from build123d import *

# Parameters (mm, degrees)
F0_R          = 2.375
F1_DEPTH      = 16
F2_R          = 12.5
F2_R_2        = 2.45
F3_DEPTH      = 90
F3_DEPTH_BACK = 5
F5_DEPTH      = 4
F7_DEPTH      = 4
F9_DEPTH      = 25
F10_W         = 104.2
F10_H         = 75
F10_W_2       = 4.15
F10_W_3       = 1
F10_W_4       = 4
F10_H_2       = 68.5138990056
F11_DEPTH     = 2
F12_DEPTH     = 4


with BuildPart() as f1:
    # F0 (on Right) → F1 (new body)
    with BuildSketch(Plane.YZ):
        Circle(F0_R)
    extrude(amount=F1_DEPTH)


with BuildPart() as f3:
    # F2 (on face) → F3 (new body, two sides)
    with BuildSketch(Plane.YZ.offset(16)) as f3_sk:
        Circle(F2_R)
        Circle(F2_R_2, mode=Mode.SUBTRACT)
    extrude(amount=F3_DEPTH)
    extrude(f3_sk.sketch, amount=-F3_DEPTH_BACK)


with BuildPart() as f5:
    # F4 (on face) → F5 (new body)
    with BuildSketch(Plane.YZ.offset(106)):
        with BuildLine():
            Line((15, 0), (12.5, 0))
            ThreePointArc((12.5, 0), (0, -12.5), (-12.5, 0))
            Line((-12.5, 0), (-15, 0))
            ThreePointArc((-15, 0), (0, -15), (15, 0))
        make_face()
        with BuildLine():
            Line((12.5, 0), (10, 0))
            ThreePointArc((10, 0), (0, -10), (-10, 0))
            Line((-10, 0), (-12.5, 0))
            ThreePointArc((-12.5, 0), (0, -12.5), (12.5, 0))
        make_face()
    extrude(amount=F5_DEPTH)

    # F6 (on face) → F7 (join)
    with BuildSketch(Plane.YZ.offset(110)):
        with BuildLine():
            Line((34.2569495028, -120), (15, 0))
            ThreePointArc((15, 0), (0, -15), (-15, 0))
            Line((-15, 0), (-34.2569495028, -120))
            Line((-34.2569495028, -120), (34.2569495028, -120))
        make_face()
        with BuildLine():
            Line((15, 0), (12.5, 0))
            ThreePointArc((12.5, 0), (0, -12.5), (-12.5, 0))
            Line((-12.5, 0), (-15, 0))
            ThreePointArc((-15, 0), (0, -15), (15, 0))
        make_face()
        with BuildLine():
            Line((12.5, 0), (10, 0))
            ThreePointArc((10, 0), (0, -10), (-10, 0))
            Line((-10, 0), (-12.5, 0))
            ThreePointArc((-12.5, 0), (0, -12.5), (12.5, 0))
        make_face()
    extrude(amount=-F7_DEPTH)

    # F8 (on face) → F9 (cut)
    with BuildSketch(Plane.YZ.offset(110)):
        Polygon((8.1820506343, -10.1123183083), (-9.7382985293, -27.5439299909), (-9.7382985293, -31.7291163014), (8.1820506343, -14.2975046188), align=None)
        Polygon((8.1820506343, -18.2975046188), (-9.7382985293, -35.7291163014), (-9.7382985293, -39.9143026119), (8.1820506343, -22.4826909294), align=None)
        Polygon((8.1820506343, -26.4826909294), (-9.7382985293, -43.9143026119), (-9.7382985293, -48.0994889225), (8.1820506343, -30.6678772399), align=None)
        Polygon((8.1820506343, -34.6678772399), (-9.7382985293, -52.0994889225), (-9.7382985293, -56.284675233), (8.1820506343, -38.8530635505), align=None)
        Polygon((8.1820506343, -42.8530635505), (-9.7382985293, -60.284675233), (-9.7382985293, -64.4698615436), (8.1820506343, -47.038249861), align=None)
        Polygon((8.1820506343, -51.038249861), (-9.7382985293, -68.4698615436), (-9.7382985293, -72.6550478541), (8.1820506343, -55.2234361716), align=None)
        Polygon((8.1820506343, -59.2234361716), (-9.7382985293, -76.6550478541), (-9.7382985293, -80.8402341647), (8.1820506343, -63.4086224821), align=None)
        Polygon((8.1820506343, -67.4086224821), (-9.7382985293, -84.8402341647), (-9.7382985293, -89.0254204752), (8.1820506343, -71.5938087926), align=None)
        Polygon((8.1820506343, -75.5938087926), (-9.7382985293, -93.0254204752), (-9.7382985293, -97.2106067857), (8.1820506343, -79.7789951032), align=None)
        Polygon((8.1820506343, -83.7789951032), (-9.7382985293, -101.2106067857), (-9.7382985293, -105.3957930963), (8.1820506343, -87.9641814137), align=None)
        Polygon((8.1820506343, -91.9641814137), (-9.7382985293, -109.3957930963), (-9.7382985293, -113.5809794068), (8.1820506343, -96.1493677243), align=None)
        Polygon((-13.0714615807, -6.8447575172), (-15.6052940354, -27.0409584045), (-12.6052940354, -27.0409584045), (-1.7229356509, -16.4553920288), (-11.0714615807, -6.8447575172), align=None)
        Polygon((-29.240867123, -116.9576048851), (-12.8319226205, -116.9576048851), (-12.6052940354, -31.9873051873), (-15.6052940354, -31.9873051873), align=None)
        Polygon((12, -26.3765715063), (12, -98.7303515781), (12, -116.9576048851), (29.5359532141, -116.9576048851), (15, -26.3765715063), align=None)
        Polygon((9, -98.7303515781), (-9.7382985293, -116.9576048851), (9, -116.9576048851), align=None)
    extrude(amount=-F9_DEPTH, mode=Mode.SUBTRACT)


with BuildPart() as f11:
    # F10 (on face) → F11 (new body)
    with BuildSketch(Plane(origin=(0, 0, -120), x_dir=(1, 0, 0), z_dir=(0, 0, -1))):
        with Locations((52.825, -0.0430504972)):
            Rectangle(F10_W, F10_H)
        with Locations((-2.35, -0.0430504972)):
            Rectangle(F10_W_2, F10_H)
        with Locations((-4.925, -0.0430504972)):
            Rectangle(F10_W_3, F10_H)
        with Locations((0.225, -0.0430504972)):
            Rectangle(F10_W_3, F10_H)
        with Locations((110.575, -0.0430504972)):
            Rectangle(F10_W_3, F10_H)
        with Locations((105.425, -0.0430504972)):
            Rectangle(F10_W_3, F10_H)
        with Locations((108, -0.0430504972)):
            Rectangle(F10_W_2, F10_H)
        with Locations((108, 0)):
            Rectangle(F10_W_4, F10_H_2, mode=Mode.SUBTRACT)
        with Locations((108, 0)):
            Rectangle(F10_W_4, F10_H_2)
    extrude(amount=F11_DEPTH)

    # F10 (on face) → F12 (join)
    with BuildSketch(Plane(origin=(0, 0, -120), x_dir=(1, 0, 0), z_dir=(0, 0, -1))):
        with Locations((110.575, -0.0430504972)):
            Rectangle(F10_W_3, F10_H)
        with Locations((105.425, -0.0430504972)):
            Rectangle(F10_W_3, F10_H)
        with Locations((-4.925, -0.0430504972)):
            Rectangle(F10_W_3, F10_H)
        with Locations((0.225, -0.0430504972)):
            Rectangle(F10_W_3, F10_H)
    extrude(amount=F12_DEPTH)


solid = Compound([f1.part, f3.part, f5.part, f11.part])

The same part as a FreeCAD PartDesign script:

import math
import FreeCAD as App
import Part
import Sketcher

V = App.Vector
Q = App.Units.Quantity


def add_polygon(sketch, points):
    """Adds a closed chain of lines whose ends are joined by coincident constraints."""
    first, n = sketch.GeometryCount, len(points)
    for a, b in zip(points, points[1:] + points[:1]):
        sketch.addGeometry(Part.LineSegment(App.Vector(*a, 0), App.Vector(*b, 0)), False)
    for i in range(n):
        sketch.addConstraint(Sketcher.Constraint("Coincident", first + i, 2, first + (i + 1) % n, 1))

doc = App.newDocument("Part")
body = doc.addObject("PartDesign::Body", "Body")

# Sketch on YZ plane
sketch1 = body.newObject("Sketcher::SketchObject", "Sketch")
sketch1.AttachmentSupport = (doc.getObject("YZ_Plane"), [""])
sketch1.MapMode = "FlatFace"
sketch1.addGeometry(Part.Circle(V(0, 0, 0), V(0, 0, 1), 2.375), False)
sketch1.addConstraint([
    Sketcher.Constraint("Coincident", 0, 3, -1, 1),
    Sketcher.Constraint("Diameter", 0, Q("4.75 mm")),
])
pad1 = body.newObject("PartDesign::Pad", "Pad")
pad1.Profile = sketch1
pad1.Length = 16
body2 = doc.addObject("PartDesign::Body", "Body001")

# Sketch on YZ plane
sketch2 = body2.newObject("Sketcher::SketchObject", "Sketch001")
sketch2.AttachmentSupport = (doc.getObject("YZ_Plane001"), [""])
sketch2.MapMode = "FlatFace"
sketch2.AttachmentOffset = App.Placement(V(0, 0, 16), App.Rotation())
sketch2.addGeometry([
    Part.Circle(V(0, 0, 0), V(0, 0, 1), 12.5),
    Part.Circle(V(0, 0, 0), V(0, 0, 1), 2.45),
], False)
sketch2.addConstraint([
    Sketcher.Constraint("Coincident", 0, 3, -1, 1),
    Sketcher.Constraint("Coincident", 1, 3, -1, 1),
    Sketcher.Constraint("Diameter", 0, Q("25 mm")),
    Sketcher.Constraint("Diameter", 1, Q("4.9 mm")),
])
pad2 = body2.newObject("PartDesign::Pad", "Pad001")
pad2.Profile = sketch2
pad2.Type = "TwoLengths"
pad2.Length = 90
pad2.Length2 = 5
body3 = doc.addObject("PartDesign::Body", "Body002")

# Sketch on YZ plane
sketch3 = body3.newObject("Sketcher::SketchObject", "Sketch002")
sketch3.AttachmentSupport = (doc.getObject("YZ_Plane002"), [""])
sketch3.MapMode = "FlatFace"
sketch3.AttachmentOffset = App.Placement(V(0, 0, 106), App.Rotation())
sketch3.addGeometry([
    Part.LineSegment(V(15, 0, 0), V(10, 0, 0)),
    Part.ArcOfCircle(Part.Circle(V(0, 0, 0), V(0, 0, 1), 10), math.radians(180), math.radians(360)),
    Part.LineSegment(V(-10, 0, 0), V(-15, 0, 0)),
    Part.ArcOfCircle(Part.Circle(V(0, 0, 0), V(0, 0, 1), 15), math.radians(180), math.radians(360)),
], False)
sketch3.addConstraint([
    Sketcher.Constraint("Coincident", 0, 2, 1, 2),
    Sketcher.Constraint("Coincident", 1, 1, 2, 1),
    Sketcher.Constraint("Coincident", 2, 2, 3, 1),
    Sketcher.Constraint("Coincident", 3, 2, 0, 1),
    Sketcher.Constraint("Horizontal", 0),
    Sketcher.Constraint("Horizontal", 2),
    Sketcher.Constraint("Coincident", 1, 3, -1, 1),
    Sketcher.Constraint("Coincident", 3, 3, -1, 1),
    Sketcher.Constraint("PointOnObject", 0, 2, -1),
    Sketcher.Constraint("PointOnObject", 1, 1, -1),
    Sketcher.Constraint("Radius", 1, Q("10 mm")),
    Sketcher.Constraint("Radius", 3, Q("15 mm")),
])
pad3 = body3.newObject("PartDesign::Pad", "Pad002")
pad3.Profile = sketch3
pad3.Length = 4

# Sketch on YZ plane
sketch4 = body3.newObject("Sketcher::SketchObject", "Sketch003")
sketch4.AttachmentSupport = (doc.getObject("YZ_Plane002"), [""])
sketch4.MapMode = "FlatFace"
sketch4.AttachmentOffset = App.Placement(V(0, 0, 110), App.Rotation())
sketch4.addGeometry([
    Part.LineSegment(V(34.25695, -120, 0), V(15, 0, 0)),  # 0
    Part.LineSegment(V(15, 0, 0), V(10, 0, 0)),  # 1
    Part.ArcOfCircle(Part.Circle(V(0, 0, 0), V(0, 0, 1), 10), math.radians(180), math.radians(360)),  # 2
    Part.LineSegment(V(-10, 0, 0), V(-15, 0, 0)),  # 3
    Part.LineSegment(V(-15, 0, 0), V(-34.25695, -120, 0)),  # 4
    Part.LineSegment(V(-34.25695, -120, 0), V(34.25695, -120, 0)),  # 5
], False)
sketch4.addConstraint([
    Sketcher.Constraint("Coincident", 0, 2, 1, 1),
    Sketcher.Constraint("Coincident", 1, 2, 2, 2),
    Sketcher.Constraint("Coincident", 2, 1, 3, 1),
    Sketcher.Constraint("Coincident", 3, 2, 4, 1),
    Sketcher.Constraint("Coincident", 4, 2, 5, 1),
    Sketcher.Constraint("Coincident", 5, 2, 0, 1),
    Sketcher.Constraint("Horizontal", 1),
    Sketcher.Constraint("Horizontal", 3),
    Sketcher.Constraint("Horizontal", 5),
    Sketcher.Constraint("Coincident", 2, 3, -1, 1),
    Sketcher.Constraint("Symmetric", 0, 2, 3, 2, -1, 1),
    Sketcher.Constraint("PointOnObject", 0, 2, -1),
    Sketcher.Constraint("Equal", 0, 4),
    Sketcher.Constraint("Radius", 2, Q("10 mm")),
    Sketcher.Constraint("DistanceX", 1, 2, 1, 1, Q("5 mm")),
    Sketcher.Constraint("DistanceY", 4, 2, -1, 1, Q("120 mm")),
    Sketcher.Constraint("DistanceX", 5, 1, 5, 2, Q("68.513899 mm")),
])
pad4 = body3.newObject("PartDesign::Pad", "Pad003")
pad4.Profile = sketch4
pad4.Length = 4
pad4.Reversed = True

# Sketch on YZ plane
sketch5 = body3.newObject("Sketcher::SketchObject", "Sketch004")
sketch5.AttachmentSupport = (doc.getObject("YZ_Plane002"), [""])
sketch5.MapMode = "FlatFace"
sketch5.AttachmentOffset = App.Placement(V(0, 0, 110), App.Rotation())
add_polygon(sketch5, [(8.182051, -10.112318), (-9.738299, -27.54393), (-9.738299, -31.729116), (8.182051, -14.297505)])  # lines 0-3
add_polygon(sketch5, [(8.182051, -18.297505), (-9.738299, -35.729116), (-9.738299, -39.914303), (8.182051, -22.482691)])  # lines 4-7
add_polygon(sketch5, [(8.182051, -26.482691), (-9.738299, -43.914303), (-9.738299, -48.099489), (8.182051, -30.667877)])  # lines 8-11
add_polygon(sketch5, [(8.182051, -34.667877), (-9.738299, -52.099489), (-9.738299, -56.284675), (8.182051, -38.853064)])  # lines 12-15
add_polygon(sketch5, [(8.182051, -42.853064), (-9.738299, -60.284675), (-9.738299, -64.469862), (8.182051, -47.03825)])  # lines 16-19
add_polygon(sketch5, [(8.182051, -51.03825), (-9.738299, -68.469862), (-9.738299, -72.655048), (8.182051, -55.223436)])  # lines 20-23
add_polygon(sketch5, [(8.182051, -59.223436), (-9.738299, -76.655048), (-9.738299, -80.840234), (8.182051, -63.408622)])  # lines 24-27
add_polygon(sketch5, [(8.182051, -67.408622), (-9.738299, -84.840234), (-9.738299, -89.02542), (8.182051, -71.593809)])  # lines 28-31
add_polygon(sketch5, [(8.182051, -75.593809), (-9.738299, -93.02542), (-9.738299, -97.210607), (8.182051, -79.778995)])  # lines 32-35
add_polygon(sketch5, [(8.182051, -83.778995), (-9.738299, -101.210607), (-9.738299, -105.395793), (8.182051, -87.964181)])  # lines 36-39
add_polygon(sketch5, [(8.182051, -91.964181), (-9.738299, -109.395793), (-9.738299, -113.580979), (8.182051, -96.149368)])  # lines 40-43
add_polygon(sketch5, [(-13.071462, -6.844758), (-15.605294, -27.040958), (-12.605294, -27.040958), (-1.722936, -16.455392), (-11.071462, -6.844758)])  # lines 44-48
add_polygon(sketch5, [(-29.240867, -116.957605), (-12.831923, -116.957605), (-12.605294, -31.987305), (-15.605294, -31.987305)])  # lines 49-52
add_polygon(sketch5, [(12, -26.376572), (12, -116.957605), (29.535953, -116.957605), (15, -26.376572)])  # lines 53-56
add_polygon(sketch5, [(9, -98.730352), (-9.738299, -116.957605), (9, -116.957605)])  # lines 57-59
sketch5.addConstraint([
    Sketcher.Constraint("Vertical", 1),
    Sketcher.Constraint("Vertical", 3),
    Sketcher.Constraint("Vertical", 5),
    Sketcher.Constraint("Vertical", 7),
    Sketcher.Constraint("Vertical", 9),
    Sketcher.Constraint("Vertical", 11),
    Sketcher.Constraint("Vertical", 13),
    Sketcher.Constraint("Vertical", 15),
    Sketcher.Constraint("Vertical", 17),
    Sketcher.Constraint("Vertical", 19),
    Sketcher.Constraint("Vertical", 21),
    Sketcher.Constraint("Vertical", 23),
    Sketcher.Constraint("Vertical", 25),
    Sketcher.Constraint("Vertical", 27),
    Sketcher.Constraint("Vertical", 29),
    Sketcher.Constraint("Vertical", 31),
    Sketcher.Constraint("Vertical", 33),
    Sketcher.Constraint("Vertical", 35),
    Sketcher.Constraint("Vertical", 37),
    Sketcher.Constraint("Vertical", 39),
    Sketcher.Constraint("Vertical", 41),
    Sketcher.Constraint("Vertical", 43),
    Sketcher.Constraint("Horizontal", 45),
    Sketcher.Constraint("Horizontal", 48),
    Sketcher.Constraint("Horizontal", 49),
    Sketcher.Constraint("Horizontal", 51),
    Sketcher.Constraint("Vertical", 53),
    Sketcher.Constraint("Horizontal", 54),
    Sketcher.Constraint("Horizontal", 56),
    Sketcher.Constraint("Horizontal", 58),
    Sketcher.Constraint("Vertical", 59),
    Sketcher.Constraint("Parallel", 0, 2),
    Sketcher.Constraint("Parallel", 2, 4),
    Sketcher.Constraint("Parallel", 4, 6),
    Sketcher.Constraint("Parallel", 6, 8),
    Sketcher.Constraint("Parallel", 8, 10),
    Sketcher.Constraint("Parallel", 10, 12),
    Sketcher.Constraint("Parallel", 12, 14),
    Sketcher.Constraint("Parallel", 14, 16),
    Sketcher.Constraint("Parallel", 16, 18),
    Sketcher.Constraint("Parallel", 18, 20),
    Sketcher.Constraint("Parallel", 20, 22),
    Sketcher.Constraint("Parallel", 22, 24),
    Sketcher.Constraint("Parallel", 24, 26),
    Sketcher.Constraint("Parallel", 26, 28),
    Sketcher.Constraint("Parallel", 28, 30),
    Sketcher.Constraint("Parallel", 30, 32),
    Sketcher.Constraint("Parallel", 32, 34),
    Sketcher.Constraint("Parallel", 34, 36),
    Sketcher.Constraint("Parallel", 36, 38),
    Sketcher.Constraint("Parallel", 38, 40),
    Sketcher.Constraint("Parallel", 40, 42),
    Sketcher.Constraint("Parallel", 42, 46),
    Sketcher.Constraint("Perpendicular", 46, 47),
    Sketcher.Constraint("Perpendicular", 47, 57),
    Sketcher.Constraint("Horizontal", 52, 2, 53, 2),
    Sketcher.Constraint("Horizontal", 54, 2, 57, 2),
    Sketcher.Constraint("Vertical", 1, 2, 4, 2),
    Sketcher.Constraint("Vertical", 3, 2, 6, 2),
    Sketcher.Constraint("Vertical", 5, 2, 8, 2),
    Sketcher.Constraint("Vertical", 7, 2, 10, 2),
    Sketcher.Constraint("Vertical", 9, 2, 12, 2),
    Sketcher.Constraint("Vertical", 11, 2, 14, 2),
    Sketcher.Constraint("Vertical", 13, 2, 16, 2),
    Sketcher.Constraint("Vertical", 15, 2, 18, 2),
    Sketcher.Constraint("Vertical", 17, 2, 20, 2),
    Sketcher.Constraint("Vertical", 19, 2, 22, 2),
    Sketcher.Constraint("Vertical", 21, 2, 24, 2),
    Sketcher.Constraint("Vertical", 23, 2, 26, 2),
    Sketcher.Constraint("Vertical", 25, 2, 28, 2),
    Sketcher.Constraint("Vertical", 27, 2, 30, 2),
    Sketcher.Constraint("Vertical", 29, 2, 32, 2),
    Sketcher.Constraint("Vertical", 31, 2, 34, 2),
    Sketcher.Constraint("Vertical", 33, 2, 36, 2),
    Sketcher.Constraint("Vertical", 35, 2, 38, 2),
    Sketcher.Constraint("Vertical", 37, 2, 40, 2),
    Sketcher.Constraint("Vertical", 39, 2, 42, 2),
    Sketcher.Constraint("Vertical", 45, 2, 50, 2),
    Sketcher.Constraint("Vertical", 44, 2, 51, 2),
    Sketcher.Constraint("Vertical", 41, 2, 57, 2),
    Sketcher.Constraint("Equal", 51, 56),
    Sketcher.Constraint("Equal", 3, 5),
    Sketcher.Constraint("Equal", 7, 9),
    Sketcher.Constraint("Equal", 11, 13),
    Sketcher.Constraint("Equal", 15, 17),
    Sketcher.Constraint("Equal", 19, 21),
    Sketcher.Constraint("Equal", 23, 25),
    Sketcher.Constraint("Equal", 27, 29),
    Sketcher.Constraint("Equal", 31, 33),
    Sketcher.Constraint("Equal", 35, 37),
    Sketcher.Constraint("Equal", 39, 41),
    Sketcher.Constraint("DistanceX", 45, 1, 45, 2, Q("3 mm")),
    Sketcher.Constraint("DistanceX", 48, 2, 48, 1, Q("2 mm")),
    Sketcher.Constraint("Distance", 0, Q("25 mm")),
    Sketcher.Constraint("DistanceX", -1, 1, 53, 2, Q("12 mm")),
    Sketcher.Constraint("DistanceX", -1, 1, 58, 2, Q("9 mm")),
    Sketcher.Constraint("DistanceY", 4, 2, 1, 2, Q("4 mm")),
    Sketcher.Constraint("DistanceY", 8, 2, 5, 2, Q("4 mm")),
    Sketcher.Constraint("DistanceY", 12, 2, 9, 2, Q("4 mm")),
    Sketcher.Constraint("DistanceY", 16, 2, 13, 2, Q("4 mm")),
    Sketcher.Constraint("DistanceY", 20, 2, 17, 2, Q("4 mm")),
    Sketcher.Constraint("DistanceY", 24, 2, 21, 2, Q("4 mm")),
    Sketcher.Constraint("DistanceY", 28, 2, 25, 2, Q("4 mm")),
    Sketcher.Constraint("DistanceY", 32, 2, 29, 2, Q("4 mm")),
    Sketcher.Constraint("DistanceY", 36, 2, 33, 2, Q("4 mm")),
    Sketcher.Constraint("DistanceY", 40, 2, 37, 2, Q("4 mm")),
    Sketcher.Constraint("DistanceX", 58, 1, 58, 2, Q("18.738299 mm")),
    Sketcher.Constraint("DistanceY", 49, 2, 36, 2, Q("15.746998 mm")),
    Sketcher.Constraint("Distance", 50, Q("84.970602 mm")),
    Sketcher.Constraint("DistanceY", 6, 2, 46, 2, Q("6.027299 mm")),
    Sketcher.Constraint("DistanceY", 45, 2, 47, 2, Q("20.196201 mm")),
    Sketcher.Constraint("Distance", 44, Q("20.354529 mm")),
    Sketcher.Constraint("Distance", 47, Q("13.407432 mm")),
    Sketcher.Constraint("DistanceX", 49, 1, 49, 2, Q("16.408945 mm")),
    Sketcher.Constraint("DistanceX", 54, 1, 54, 2, Q("17.535953 mm")),
    Sketcher.Constraint("DistanceY", 1, 2, 1, 1, Q("4.185186 mm")),
    Sketcher.Constraint("DistanceY", 53, 2, 53, 1, Q("90.581033 mm")),
    Sketcher.Constraint("DistanceY", 0, 2, -1, 1, Q("27.54393 mm")),
    Sketcher.Constraint("DistanceX", 47, 2, -1, 1, Q("11.071462 mm")),
    Sketcher.Constraint("DistanceX", 52, 2, 41, 2, Q("19.502569 mm")),
])
pocket1 = body3.newObject("PartDesign::Pocket", "Pocket")
pocket1.Profile = sketch5
pocket1.Length = 25
body4 = doc.addObject("PartDesign::Body", "Body003")

# Sketch on XY plane
sketch6 = body4.newObject("Sketcher::SketchObject", "Sketch005")
sketch6.AttachmentSupport = (doc.getObject("XY_Plane003"), [""])
sketch6.MapMode = "FlatFace"
sketch6.AttachmentOffset = App.Placement(V(0, 0, -120), App.Rotation())
add_polygon(sketch6, [(-5.425, -37.45695), (-5.425, 37.54305), (111.075, 37.54305), (111.075, -37.45695)])  # lines 0-3
sketch6.addConstraint([
    Sketcher.Constraint("Vertical", 0),
    Sketcher.Constraint("Horizontal", 1),
    Sketcher.Constraint("Vertical", 2),
    Sketcher.Constraint("Horizontal", 3),
    Sketcher.Constraint("DistanceY", 0, 1, 0, 2, Q("75 mm")),
    Sketcher.Constraint("DistanceX", 1, 1, 1, 2, Q("116.5 mm")),
    Sketcher.Constraint("DistanceX", 0, 2, -1, 1, Q("5.425 mm")),
    Sketcher.Constraint("DistanceY", -1, 1, 0, 2, Q("37.54305 mm")),
])
pad5 = body4.newObject("PartDesign::Pad", "Pad004")
pad5.Profile = sketch6
pad5.Length = 2
pad5.Reversed = True

# Sketch on XY plane
sketch7 = body4.newObject("Sketcher::SketchObject", "Sketch006")
sketch7.AttachmentSupport = (doc.getObject("XY_Plane003"), [""])
sketch7.MapMode = "FlatFace"
sketch7.AttachmentOffset = App.Placement(V(0, 0, -120), App.Rotation())
add_polygon(sketch7, [(110.075, -37.45695), (110.075, 37.54305), (111.075, 37.54305), (111.075, -37.45695)])  # lines 0-3
add_polygon(sketch7, [(104.925, -37.45695), (104.925, 37.54305), (105.925, 37.54305), (105.925, -37.45695)])  # lines 4-7
add_polygon(sketch7, [(-5.425, -37.45695), (-5.425, 37.54305), (-4.425, 37.54305), (-4.425, -37.45695)])  # lines 8-11
add_polygon(sketch7, [(-0.275, -37.45695), (-0.275, 37.54305), (0.725, 37.54305), (0.725, -37.45695)])  # lines 12-15
sketch7.addConstraint([
    Sketcher.Constraint("Vertical", 0),
    Sketcher.Constraint("Horizontal", 1),
    Sketcher.Constraint("Vertical", 2),
    Sketcher.Constraint("Horizontal", 3),
    Sketcher.Constraint("Vertical", 4),
    Sketcher.Constraint("Horizontal", 5),
    Sketcher.Constraint("Vertical", 6),
    Sketcher.Constraint("Horizontal", 7),
    Sketcher.Constraint("Vertical", 8),
    Sketcher.Constraint("Horizontal", 9),
    Sketcher.Constraint("Vertical", 10),
    Sketcher.Constraint("Horizontal", 11),
    Sketcher.Constraint("Vertical", 12),
    Sketcher.Constraint("Horizontal", 13),
    Sketcher.Constraint("Vertical", 14),
    Sketcher.Constraint("Horizontal", 15),
    Sketcher.Constraint("Horizontal", 1, 2, 4, 2),
    Sketcher.Constraint("Horizontal", 3, 2, 6, 2),
    Sketcher.Constraint("Horizontal", 5, 2, 8, 2),
    Sketcher.Constraint("Horizontal", 7, 2, 10, 2),
    Sketcher.Constraint("Horizontal", 9, 2, 12, 2),
    Sketcher.Constraint("Horizontal", 11, 2, 14, 2),
    Sketcher.Constraint("Equal", 3, 5),
    Sketcher.Constraint("Equal", 7, 9),
    Sketcher.Constraint("Equal", 11, 13),
    Sketcher.Constraint("DistanceX", 1, 1, 1, 2, Q("1 mm")),
    Sketcher.Constraint("DistanceY", 0, 1, 0, 2, Q("75 mm")),
    Sketcher.Constraint("DistanceX", 8, 2, 0, 2, Q("115.5 mm")),
    Sketcher.Constraint("DistanceX", 12, 2, 4, 2, Q("105.2 mm")),
    Sketcher.Constraint("DistanceX", 4, 2, 0, 2, Q("5.15 mm")),
    Sketcher.Constraint("DistanceX", -1, 1, 0, 2, Q("110.075 mm")),
    Sketcher.Constraint("DistanceY", -1, 1, 0, 2, Q("37.54305 mm")),
])
pad6 = body4.newObject("PartDesign::Pad", "Pad005")
pad6.Profile = sketch7
pad6.Length = 4
pad6.Reversed = True

doc.recompute()
